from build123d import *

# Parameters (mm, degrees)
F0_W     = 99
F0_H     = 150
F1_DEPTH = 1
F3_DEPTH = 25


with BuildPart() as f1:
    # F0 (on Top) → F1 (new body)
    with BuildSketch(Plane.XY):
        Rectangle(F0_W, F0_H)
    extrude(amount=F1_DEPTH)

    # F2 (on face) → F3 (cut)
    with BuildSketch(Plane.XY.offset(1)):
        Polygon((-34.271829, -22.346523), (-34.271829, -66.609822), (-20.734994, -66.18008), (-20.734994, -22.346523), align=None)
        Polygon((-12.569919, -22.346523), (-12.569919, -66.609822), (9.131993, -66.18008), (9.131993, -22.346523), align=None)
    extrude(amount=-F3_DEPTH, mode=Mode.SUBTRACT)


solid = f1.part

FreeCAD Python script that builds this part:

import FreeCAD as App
import Part
import Sketcher

doc = App.newDocument("Part")
params = doc.addObject("Spreadsheet::Sheet", "Params")
for row, (alias, value) in enumerate([
    ("sketch1_width", "99 mm"),
    ("sketch1_height", "150 mm"),
    ("pad1_length", "1 mm"),
    ("pocket1_length", "25 mm"),
], start=1):
    params.set(f"A{row}", alias)
    params.set(f"B{row}", "=" + value)
    params.setAlias(f"B{row}", alias)

body = doc.addObject("PartDesign::Body", "Body")

# Sketch on XY plane
sketch1 = body.newObject("Sketcher::SketchObject", "Sketch")
sketch1.AttachmentSupport = (doc.getObject("XY_Plane"), [""])
sketch1.MapMode = "FlatFace"
sketch1.addGeometry([
    Part.LineSegment(App.Vector(-50, 75, 0), App.Vector(-50, -75, 0)),
    Part.LineSegment(App.Vector(-50, -75, 0), App.Vector(50, -75, 0)),
    Part.LineSegment(App.Vector(50, -75, 0), App.Vector(50, 75, 0)),
    Part.LineSegment(App.Vector(50, 75, 0), App.Vector(-50, 75, 0)),
], False)
sketch1.addConstraint([
    Sketcher.Constraint("Coincident", 0, 2, 1, 1),
    Sketcher.Constraint("Coincident", 1, 2, 2, 1),
    Sketcher.Constraint("Coincident", 2, 2, 3, 1),
    Sketcher.Constraint("Coincident", 3, 2, 0, 1),
    Sketcher.Constraint("Vertical", 0),
    Sketcher.Constraint("Horizontal", 1),
    Sketcher.Constraint("Vertical", 2),
    Sketcher.Constraint("Horizontal", 3),
    Sketcher.Constraint("Symmetric", 0, 2, 2, 2, -1, 1),
    Sketcher.Constraint("DistanceX", 1, 1, 1, 2, 99.0),
    Sketcher.Constraint("DistanceY", 0, 2, 0, 1, 150.0),
])
sketch1.setExpression("Constraints[9]", "Params.sketch1_width")
sketch1.setExpression("Constraints[10]", "Params.sketch1_height")
pad1 = body.newObject("PartDesign::Pad", "Pad")
pad1.Profile = sketch1
pad1.setExpression("Length", "Params.pad1_length")

# Sketch on XY plane
sketch2 = body.newObject("Sketcher::SketchObject", "Sketch001")
sketch2.AttachmentSupport = (doc.getObject("XY_Plane"), [""])
sketch2.MapMode = "FlatFace"
sketch2.AttachmentOffset = App.Placement(App.Vector(0, 0, 1), App.Rotation())
sketch2.addGeometry([
    Part.LineSegment(App.Vector(-34, -22, 0), App.Vector(-34, -67, 0)),  # 0
    Part.LineSegment(App.Vector(-34, -67, 0), App.Vector(-21, -66, 0)),  # 1
    Part.LineSegment(App.Vector(-21, -66, 0), App.Vector(-21, -22, 0)),  # 2
    Part.LineSegment(App.Vector(-21, -22, 0), App.Vector(-34, -22, 0)),  # 3
    Part.LineSegment(App.Vector(-13, -22, 0), App.Vector(-13, -67, 0)),  # 4
    Part.LineSegment(App.Vector(-13, -67, 0), App.Vector(9, -66, 0)),  # 5
    Part.LineSegment(App.Vector(9, -66, 0), App.Vector(9, -22, 0)),  # 6
    Part.LineSegment(App.Vector(9, -22, 0), App.Vector(-13, -22, 0)),  # 7
], False)
sketch2.addConstraint([
    Sketcher.Constraint("Coincident", 0, 2, 1, 1),
    Sketcher.Constraint("Coincident", 1, 2, 2, 1),
    Sketcher.Constraint("Coincident", 2, 2, 3, 1),
    Sketcher.Constraint("Coincident", 3, 2, 0, 1),
    Sketcher.Constraint("Coincident", 4, 2, 5, 1),
    Sketcher.Constraint("Coincident", 5, 2, 6, 1),
    Sketcher.Constraint("Coincident", 6, 2, 7, 1),
    Sketcher.Constraint("Coincident", 7, 2, 4, 1),
    Sketcher.Constraint("Vertical", 0),
    Sketcher.Constraint("Vertical", 2),
    Sketcher.Constraint("Horizontal", 3),
    Sketcher.Constraint("Vertical", 4),
    Sketcher.Constraint("Vertical", 6),
    Sketcher.Constraint("Horizontal", 7),
    Sketcher.Constraint("Horizontal", 0, 2, 4, 2),
    Sketcher.Constraint("Horizontal", 1, 2, 5, 2),
    Sketcher.Constraint("Horizontal", 3, 2, 6, 2),
    Sketcher.Constraint("DistanceY", 0, 2, 0, 1, 44.263299),
    Sketcher.Constraint("DistanceX", 7, 2, 7, 1, 21.701912),
    Sketcher.Constraint("DistanceX", 3, 2, 3, 1, 13.536835),
    Sketcher.Constraint("DistanceY", 2, 1, 2, 2, 43.833557),
    Sketcher.Constraint("DistanceX", 0, 2, -1, 1, 34.271829),
    Sketcher.Constraint("DistanceY", 0, 2, -1, 1, 66.609822),
    Sketcher.Constraint("DistanceX", 4, 2, -1, 1, 12.569919),
])
pocket1 = body.newObject("PartDesign::Pocket", "Pocket")
pocket1.Profile = sketch2
pocket1.setExpression("Length", "Params.pocket1_length")

doc.recompute()
